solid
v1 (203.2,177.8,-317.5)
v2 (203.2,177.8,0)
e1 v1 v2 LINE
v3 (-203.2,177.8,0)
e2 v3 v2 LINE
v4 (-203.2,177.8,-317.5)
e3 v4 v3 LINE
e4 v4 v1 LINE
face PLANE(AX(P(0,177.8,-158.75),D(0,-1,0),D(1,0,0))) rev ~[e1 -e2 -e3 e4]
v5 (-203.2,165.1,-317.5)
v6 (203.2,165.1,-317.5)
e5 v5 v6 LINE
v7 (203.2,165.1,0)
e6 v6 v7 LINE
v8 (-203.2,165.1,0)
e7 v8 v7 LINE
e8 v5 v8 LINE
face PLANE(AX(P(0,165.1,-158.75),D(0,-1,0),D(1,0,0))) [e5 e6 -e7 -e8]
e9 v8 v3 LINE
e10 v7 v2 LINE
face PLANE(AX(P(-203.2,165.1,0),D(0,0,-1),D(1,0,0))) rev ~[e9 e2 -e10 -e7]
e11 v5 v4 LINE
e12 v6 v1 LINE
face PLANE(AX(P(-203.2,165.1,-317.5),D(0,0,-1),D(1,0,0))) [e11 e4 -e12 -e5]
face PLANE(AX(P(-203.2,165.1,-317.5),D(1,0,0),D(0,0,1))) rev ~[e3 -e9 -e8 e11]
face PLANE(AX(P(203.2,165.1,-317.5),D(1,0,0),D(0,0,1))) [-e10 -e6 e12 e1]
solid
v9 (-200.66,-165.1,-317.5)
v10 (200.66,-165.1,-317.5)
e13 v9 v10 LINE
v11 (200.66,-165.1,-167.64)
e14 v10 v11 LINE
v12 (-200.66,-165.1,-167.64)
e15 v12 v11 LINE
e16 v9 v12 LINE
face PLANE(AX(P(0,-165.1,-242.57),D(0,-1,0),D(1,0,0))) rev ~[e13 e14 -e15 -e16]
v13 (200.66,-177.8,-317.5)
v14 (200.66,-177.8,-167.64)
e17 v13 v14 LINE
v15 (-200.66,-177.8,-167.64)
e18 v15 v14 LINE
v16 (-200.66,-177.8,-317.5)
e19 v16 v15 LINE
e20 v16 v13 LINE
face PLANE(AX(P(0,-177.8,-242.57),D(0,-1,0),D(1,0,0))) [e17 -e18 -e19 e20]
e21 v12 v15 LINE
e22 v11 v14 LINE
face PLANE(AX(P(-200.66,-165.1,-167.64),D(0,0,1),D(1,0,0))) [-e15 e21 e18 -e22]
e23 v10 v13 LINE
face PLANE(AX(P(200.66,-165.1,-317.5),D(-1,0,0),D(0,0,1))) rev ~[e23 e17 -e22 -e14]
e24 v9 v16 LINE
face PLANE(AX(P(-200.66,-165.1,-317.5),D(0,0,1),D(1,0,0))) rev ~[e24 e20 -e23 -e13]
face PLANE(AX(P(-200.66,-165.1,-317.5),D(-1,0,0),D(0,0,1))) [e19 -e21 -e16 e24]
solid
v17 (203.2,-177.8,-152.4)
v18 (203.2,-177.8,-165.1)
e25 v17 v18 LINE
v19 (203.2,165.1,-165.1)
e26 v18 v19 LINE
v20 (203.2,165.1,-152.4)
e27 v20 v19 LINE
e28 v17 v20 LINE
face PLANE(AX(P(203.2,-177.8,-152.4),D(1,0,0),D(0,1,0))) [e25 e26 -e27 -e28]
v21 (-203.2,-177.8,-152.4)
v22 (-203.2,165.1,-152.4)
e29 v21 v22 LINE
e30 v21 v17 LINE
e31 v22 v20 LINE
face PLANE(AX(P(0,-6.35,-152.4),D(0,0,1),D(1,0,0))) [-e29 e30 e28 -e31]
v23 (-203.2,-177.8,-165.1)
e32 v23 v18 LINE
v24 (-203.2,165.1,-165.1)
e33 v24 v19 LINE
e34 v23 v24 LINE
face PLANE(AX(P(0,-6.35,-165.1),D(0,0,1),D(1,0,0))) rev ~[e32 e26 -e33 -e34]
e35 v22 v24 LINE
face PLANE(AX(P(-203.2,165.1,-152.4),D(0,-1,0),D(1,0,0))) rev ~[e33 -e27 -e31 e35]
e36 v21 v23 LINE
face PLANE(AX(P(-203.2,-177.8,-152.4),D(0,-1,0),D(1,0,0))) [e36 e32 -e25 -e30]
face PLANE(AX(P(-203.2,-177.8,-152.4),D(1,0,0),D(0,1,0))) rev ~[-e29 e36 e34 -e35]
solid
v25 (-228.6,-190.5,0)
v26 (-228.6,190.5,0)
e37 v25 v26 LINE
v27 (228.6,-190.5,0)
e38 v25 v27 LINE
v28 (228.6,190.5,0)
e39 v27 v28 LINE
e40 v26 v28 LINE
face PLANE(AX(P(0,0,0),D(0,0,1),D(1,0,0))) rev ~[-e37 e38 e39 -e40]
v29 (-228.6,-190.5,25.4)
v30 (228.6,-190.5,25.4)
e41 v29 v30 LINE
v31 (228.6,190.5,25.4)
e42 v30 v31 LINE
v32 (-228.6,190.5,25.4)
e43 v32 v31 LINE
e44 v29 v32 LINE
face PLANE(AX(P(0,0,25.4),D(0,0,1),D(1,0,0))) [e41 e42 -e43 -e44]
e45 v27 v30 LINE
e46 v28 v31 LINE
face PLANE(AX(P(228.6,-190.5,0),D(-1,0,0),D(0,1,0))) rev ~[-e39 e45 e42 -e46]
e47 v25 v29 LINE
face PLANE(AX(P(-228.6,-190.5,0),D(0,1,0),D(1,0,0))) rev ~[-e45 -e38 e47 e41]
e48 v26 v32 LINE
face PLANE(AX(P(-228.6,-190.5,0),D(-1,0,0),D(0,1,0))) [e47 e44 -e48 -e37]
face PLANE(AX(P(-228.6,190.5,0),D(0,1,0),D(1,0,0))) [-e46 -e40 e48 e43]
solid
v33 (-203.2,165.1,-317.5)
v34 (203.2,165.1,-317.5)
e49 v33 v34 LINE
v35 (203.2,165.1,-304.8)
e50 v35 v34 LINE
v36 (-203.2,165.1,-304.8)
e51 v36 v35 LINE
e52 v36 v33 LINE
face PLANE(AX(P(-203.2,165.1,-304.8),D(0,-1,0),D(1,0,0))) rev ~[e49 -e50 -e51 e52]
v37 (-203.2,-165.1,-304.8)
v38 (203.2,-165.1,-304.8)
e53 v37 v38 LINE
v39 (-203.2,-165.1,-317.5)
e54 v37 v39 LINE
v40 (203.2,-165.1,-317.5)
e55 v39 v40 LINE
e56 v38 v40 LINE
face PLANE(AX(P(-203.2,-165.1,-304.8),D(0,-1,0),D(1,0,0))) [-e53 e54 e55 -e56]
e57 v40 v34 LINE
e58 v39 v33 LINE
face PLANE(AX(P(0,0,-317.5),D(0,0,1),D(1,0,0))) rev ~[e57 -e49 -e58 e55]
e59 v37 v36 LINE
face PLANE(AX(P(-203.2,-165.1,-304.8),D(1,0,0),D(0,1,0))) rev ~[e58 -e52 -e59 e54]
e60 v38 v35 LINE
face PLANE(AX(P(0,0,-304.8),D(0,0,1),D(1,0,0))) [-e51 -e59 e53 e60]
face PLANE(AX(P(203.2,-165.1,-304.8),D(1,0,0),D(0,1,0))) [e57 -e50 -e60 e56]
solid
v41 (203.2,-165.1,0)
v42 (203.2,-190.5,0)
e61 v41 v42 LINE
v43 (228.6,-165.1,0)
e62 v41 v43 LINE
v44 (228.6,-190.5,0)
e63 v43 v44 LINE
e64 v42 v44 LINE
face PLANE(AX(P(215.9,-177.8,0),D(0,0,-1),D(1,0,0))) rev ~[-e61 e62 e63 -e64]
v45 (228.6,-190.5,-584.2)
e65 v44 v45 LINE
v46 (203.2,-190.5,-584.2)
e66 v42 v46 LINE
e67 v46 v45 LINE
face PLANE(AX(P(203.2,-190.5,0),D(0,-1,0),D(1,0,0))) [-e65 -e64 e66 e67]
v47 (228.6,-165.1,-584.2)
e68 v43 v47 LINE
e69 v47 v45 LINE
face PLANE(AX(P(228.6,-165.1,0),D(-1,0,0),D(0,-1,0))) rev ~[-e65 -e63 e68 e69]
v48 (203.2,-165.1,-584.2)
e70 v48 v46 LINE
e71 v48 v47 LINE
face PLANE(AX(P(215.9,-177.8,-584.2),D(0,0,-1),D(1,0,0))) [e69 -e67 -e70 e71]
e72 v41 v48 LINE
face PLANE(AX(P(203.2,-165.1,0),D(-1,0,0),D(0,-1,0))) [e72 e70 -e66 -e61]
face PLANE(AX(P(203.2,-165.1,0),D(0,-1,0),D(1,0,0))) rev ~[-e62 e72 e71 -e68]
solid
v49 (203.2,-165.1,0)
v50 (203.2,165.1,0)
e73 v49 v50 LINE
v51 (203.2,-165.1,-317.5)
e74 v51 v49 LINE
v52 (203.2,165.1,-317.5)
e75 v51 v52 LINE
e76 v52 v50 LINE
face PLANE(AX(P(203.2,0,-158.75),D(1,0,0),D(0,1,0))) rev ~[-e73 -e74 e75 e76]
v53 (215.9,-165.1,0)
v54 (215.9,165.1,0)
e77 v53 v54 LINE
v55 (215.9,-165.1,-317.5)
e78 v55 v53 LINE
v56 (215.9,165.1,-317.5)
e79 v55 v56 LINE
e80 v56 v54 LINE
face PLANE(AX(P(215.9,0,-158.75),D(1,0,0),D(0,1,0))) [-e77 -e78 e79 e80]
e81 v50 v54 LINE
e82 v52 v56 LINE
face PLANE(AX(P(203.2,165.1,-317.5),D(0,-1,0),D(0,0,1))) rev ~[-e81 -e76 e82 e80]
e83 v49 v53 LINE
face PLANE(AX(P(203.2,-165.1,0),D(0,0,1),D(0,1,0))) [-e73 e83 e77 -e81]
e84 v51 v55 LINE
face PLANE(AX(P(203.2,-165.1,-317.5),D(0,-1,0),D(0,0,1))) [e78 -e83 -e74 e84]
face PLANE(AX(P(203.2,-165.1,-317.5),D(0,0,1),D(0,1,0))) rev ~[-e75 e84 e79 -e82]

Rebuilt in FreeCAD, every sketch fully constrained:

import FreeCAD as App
import Part
import Sketcher
Q = App.Units.Quantity

doc = App.newDocument("Part")
body = doc.addObject("PartDesign::Body", "Body")

# Sketch on XY plane
sketch1 = doc.addObject("Sketcher::SketchObject", "Sketch")
body.addObject(sketch1)
sketch1.AttachmentSupport = (doc.XY_Plane, [""])
sketch1.MapMode = "FlatFace"
sketch1.addGeometry(Part.LineSegment(App.Vector(-229, 190, 0), App.Vector(-229, -190, 0)), False)
sketch1.addGeometry(Part.LineSegment(App.Vector(-229, -190, 0), App.Vector(229, -190, 0)), False)
sketch1.addGeometry(Part.LineSegment(App.Vector(229, -190, 0), App.Vector(229, 190, 0)), False)
sketch1.addGeometry(Part.LineSegment(App.Vector(229, 190, 0), App.Vector(-229, 190, 0)), False)
sketch1.addConstraint(Sketcher.Constraint("Coincident", 0, 2, 1, 1))
sketch1.addConstraint(Sketcher.Constraint("Coincident", 1, 2, 2, 1))
sketch1.addConstraint(Sketcher.Constraint("Coincident", 2, 2, 3, 1))
sketch1.addConstraint(Sketcher.Constraint("Coincident", 3, 2, 0, 1))
sketch1.addConstraint(Sketcher.Constraint("Vertical", 0))
sketch1.addConstraint(Sketcher.Constraint("Horizontal", 1))
sketch1.addConstraint(Sketcher.Constraint("Vertical", 2))
sketch1.addConstraint(Sketcher.Constraint("Horizontal", 3))
sketch1.addConstraint(Sketcher.Constraint("Symmetric", 0, 2, 2, 2, -1, 1))
sketch1.addConstraint(Sketcher.Constraint("DistanceX", 1, 1, 1, 2, Q("18 in")))
sketch1.addConstraint(Sketcher.Constraint("DistanceY", 0, 2, 0, 1, Q("15 in")))
pad1 = doc.addObject("PartDesign::Pad", "Pad")
body.addObject(pad1)
pad1.Profile = sketch1
pad1.Length = Q("1 in")
body2 = doc.addObject("PartDesign::Body", "Body001")

# Sketch on XY plane
sketch2 = doc.addObject("Sketcher::SketchObject", "Sketch001")
body2.addObject(sketch2)
sketch2.AttachmentSupport = (doc.getObject("XY_Plane001"), [""])
sketch2.MapMode = "FlatFace"
sketch2.addGeometry(Part.LineSegment(App.Vector(203, -190, 0), App.Vector(203, -165, 0)), False)
sketch2.addGeometry(Part.LineSegment(App.Vector(203, -165, 0), App.Vector(229, -165, 0)), False)
sketch2.addGeometry(Part.LineSegment(App.Vector(229, -165, 0), App.Vector(229, -190, 0)), False)
sketch2.addGeometry(Part.LineSegment(App.Vector(229, -190, 0), App.Vector(203, -190, 0)), False)
sketch2.addConstraint(Sketcher.Constraint("Coincident", 0, 2, 1, 1))
sketch2.addConstraint(Sketcher.Constraint("Coincident", 1, 2, 2, 1))
sketch2.addConstraint(Sketcher.Constraint("Coincident", 2, 2, 3, 1))
sketch2.addConstraint(Sketcher.Constraint("Coincident", 3, 2, 0, 1))
sketch2.addConstraint(Sketcher.Constraint("Vertical", 0))
sketch2.addConstraint(Sketcher.Constraint("Horizontal", 1))
sketch2.addConstraint(Sketcher.Constraint("Vertical", 2))
sketch2.addConstraint(Sketcher.Constraint("Horizontal", 3))
sketch2.addConstraint(Sketcher.Constraint("Equal", 3, 0))
sketch2.addConstraint(Sketcher.Constraint("DistanceX", 1, 1, 1, 2, Q("1 in")))
sketch2.addConstraint(Sketcher.Constraint("DistanceX", -1, 1, 0, 2, Q("8 in")))
sketch2.addConstraint(Sketcher.Constraint("DistanceY", 0, 2, -1, 1, Q("6.5 in")))
pad2 = doc.addObject("PartDesign::Pad", "Pad001")
body2.addObject(pad2)
pad2.Profile = sketch2
pad2.Length = Q("23 in")
pad2.Reversed = True
body3 = doc.addObject("PartDesign::Body", "Body002")

# Sketch on XY plane
sketch3 = doc.addObject("Sketcher::SketchObject", "Sketch002")
body3.addObject(sketch3)
sketch3.AttachmentSupport = (doc.getObject("XY_Plane002"), [""])
sketch3.MapMode = "FlatFace"
sketch3.AttachmentOffset = App.Placement(App.Vector(0, 0, -12 * 25.4), App.Rotation())
sketch3.addGeometry(Part.LineSegment(App.Vector(-203, 165, 0), App.Vector(-203, -165, 0)), False)
sketch3.addGeometry(Part.LineSegment(App.Vector(-203, -165, 0), App.Vector(203, -165, 0)), False)
sketch3.addGeometry(Part.LineSegment(App.Vector(203, -165, 0), App.Vector(203, 165, 0)), False)
sketch3.addGeometry(Part.LineSegment(App.Vector(203, 165, 0), App.Vector(-203, 165, 0)), False)
sketch3.addConstraint(Sketcher.Constraint("Coincident", 0, 2, 1, 1))
sketch3.addConstraint(Sketcher.Constraint("Coincident", 1, 2, 2, 1))
sketch3.addConstraint(Sketcher.Constraint("Coincident", 2, 2, 3, 1))
sketch3.addConstraint(Sketcher.Constraint("Coincident", 3, 2, 0, 1))
sketch3.addConstraint(Sketcher.Constraint("Vertical", 0))
sketch3.addConstraint(Sketcher.Constraint("Horizontal", 1))
sketch3.addConstraint(Sketcher.Constraint("Vertical", 2))
sketch3.addConstraint(Sketcher.Constraint("Horizontal", 3))
sketch3.addConstraint(Sketcher.Constraint("Symmetric", 0, 2, 2, 2, -1, 1))
sketch3.addConstraint(Sketcher.Constraint("DistanceX", 1, 1, 1, 2, Q("16 in")))
sketch3.addConstraint(Sketcher.Constraint("DistanceY", 0, 2, 0, 1, Q("13 in")))
pad3 = doc.addObject("PartDesign::Pad", "Pad002")
body3.addObject(pad3)
pad3.Profile = sketch3
pad3.Length = Q("0.5 in")
pad3.Reversed = True
body4 = doc.addObject("PartDesign::Body", "Body003")

# Sketch on YZ plane
sketch4 = doc.addObject("Sketcher::SketchObject", "Sketch003")
body4.addObject(sketch4)
sketch4.AttachmentSupport = (doc.getObject("YZ_Plane003"), [""])
sketch4.MapMode = "FlatFace"
sketch4.AttachmentOffset = App.Placement(App.Vector(0, 0, 8 * 25.4), App.Rotation())
sketch4.addGeometry(Part.LineSegment(App.Vector(-165, 0, 0), App.Vector(-165, -318, 0)), False)
sketch4.addGeometry(Part.LineSegment(App.Vector(-165, -318, 0), App.Vector(165, -318, 0)), False)
sketch4.addGeometry(Part.LineSegment(App.Vector(165, -318, 0), App.Vector(165, 0, 0)), False)
sketch4.addGeometry(Part.LineSegment(App.Vector(165, 0, 0), App.Vector(-165, 0, 0)), False)
sketch4.addConstraint(Sketcher.Constraint("Coincident", 0, 2, 1, 1))
sketch4.addConstraint(Sketcher.Constraint("Coincident", 1, 2, 2, 1))
sketch4.addConstraint(Sketcher.Constraint("Coincident", 2, 2, 3, 1))
sketch4.addConstraint(Sketcher.Constraint("Coincident", 3, 2, 0, 1))
sketch4.addConstraint(Sketcher.Constraint("Vertical", 0))
sketch4.addConstraint(Sketcher.Constraint("Horizontal", 1))
sketch4.addConstraint(Sketcher.Constraint("Vertical", 2))
sketch4.addConstraint(Sketcher.Constraint("Horizontal", 3))
sketch4.addConstraint(Sketcher.Constraint("Symmetric", 2, 2, 3, 2, -1, 1))
sketch4.addConstraint(Sketcher.Constraint("DistanceX", 1, 1, 1, 2, Q("13 in")))
sketch4.addConstraint(Sketcher.Constraint("DistanceY", 0, 2, 0, 1, Q("12.5 in")))
pad4 = doc.addObject("PartDesign::Pad", "Pad003")
body4.addObject(pad4)
pad4.Profile = sketch4
pad4.Length = Q("0.5 in")
body5 = doc.addObject("PartDesign::Body", "Body004")

# Sketch on XZ plane
sketch5 = doc.addObject("Sketcher::SketchObject", "Sketch004")
body5.addObject(sketch5)
sketch5.AttachmentSupport = (doc.getObject("XZ_Plane004"), [""])
sketch5.MapMode = "FlatFace"
sketch5.AttachmentOffset = App.Placement(App.Vector(0, 0, -6.5 * 25.4), App.Rotation())
sketch5.addGeometry(Part.LineSegment(App.Vector(-203, 0, 0), App.Vector(-203, -318, 0)), False)
sketch5.addGeometry(Part.LineSegment(App.Vector(-203, -318, 0), App.Vector(203, -318, 0)), False)
sketch5.addGeometry(Part.LineSegment(App.Vector(203, -318, 0), App.Vector(203, 0, 0)), False)
sketch5.addGeometry(Part.LineSegment(App.Vector(203, 0, 0), App.Vector(-203, 0, 0)), False)
sketch5.addConstraint(Sketcher.Constraint("Coincident", 0, 2, 1, 1))
sketch5.addConstraint(Sketcher.Constraint("Coincident", 1, 2, 2, 1))
sketch5.addConstraint(Sketcher.Constraint("Coincident", 2, 2, 3, 1))
sketch5.addConstraint(Sketcher.Constraint("Coincident", 3, 2, 0, 1))
sketch5.addConstraint(Sketcher.Constraint("Vertical", 0))
sketch5.addConstraint(Sketcher.Constraint("Horizontal", 1))
sketch5.addConstraint(Sketcher.Constraint("Vertical", 2))
sketch5.addConstraint(Sketcher.Constraint("Horizontal", 3))
sketch5.addConstraint(Sketcher.Constraint("Symmetric", 2, 2, 3, 2, -1, 1))
sketch5.addConstraint(Sketcher.Constraint("DistanceX", 1, 1, 1, 2, Q("16 in")))
sketch5.addConstraint(Sketcher.Constraint("DistanceY", 0, 2, 0, 1, Q("12.5 in")))
pad5 = doc.addObject("PartDesign::Pad", "Pad004")
body5.addObject(pad5)
pad5.Profile = sketch5
pad5.Length = Q("0.5 in")
pad5.Reversed = True
body6 = doc.addObject("PartDesign::Body", "Body005")

# Sketch on XZ plane
sketch6 = doc.addObject("Sketcher::SketchObject", "Sketch005")
body6.addObject(sketch6)
sketch6.AttachmentSupport = (doc.getObject("XZ_Plane005"), [""])
sketch6.MapMode = "FlatFace"
sketch6.AttachmentOffset = App.Placement(App.Vector(0, 0, 6.5 * 25.4), App.Rotation())
sketch6.addGeometry(Part.LineSegment(App.Vector(-201, -168, 0), App.Vector(-201, -318, 0)), False)
sketch6.addGeometry(Part.LineSegment(App.Vector(-201, -318, 0), App.Vector(201, -318, 0)), False)
sketch6.addGeometry(Part.LineSegment(App.Vector(201, -318, 0), App.Vector(201, -168, 0)), False)
sketch6.addGeometry(Part.LineSegment(App.Vector(201, -168, 0), App.Vector(-201, -168, 0)), False)
sketch6.addConstraint(Sketcher.Constraint("Coincident", 0, 2, 1, 1))
sketch6.addConstraint(Sketcher.Constraint("Coincident", 1, 2, 2, 1))
sketch6.addConstraint(Sketcher.Constraint("Coincident", 2, 2, 3, 1))
sketch6.addConstraint(Sketcher.Constraint("Coincident", 3, 2, 0, 1))
sketch6.addConstraint(Sketcher.Constraint("Vertical", 0))
sketch6.addConstraint(Sketcher.Constraint("Horizontal", 1))
sketch6.addConstraint(Sketcher.Constraint("Vertical", 2))
sketch6.addConstraint(Sketcher.Constraint("Horizontal", 3))
sketch6.addConstraint(Sketcher.Constraint("DistanceX", 1, 1, 1, 2, Q("15.8 in")))
sketch6.addConstraint(Sketcher.Constraint("DistanceY", 0, 2, 0, 1, Q("5.9 in")))
sketch6.addConstraint(Sketcher.Constraint("DistanceX", 0, 2, -1, 1, Q("7.9 in")))
sketch6.addConstraint(Sketcher.Constraint("DistanceY", 0, 2, -1, 1, Q("12.5 in")))
pad6 = doc.addObject("PartDesign::Pad", "Pad005")
body6.addObject(pad6)
pad6.Profile = sketch6
pad6.Length = Q("0.5 in")
body7 = doc.addObject("PartDesign::Body", "Body006")

# Sketch on XY plane
sketch7 = doc.addObject("Sketcher::SketchObject", "Sketch006")
body7.addObject(sketch7)
sketch7.AttachmentSupport = (doc.getObject("XY_Plane006"), [""])
sketch7.MapMode = "FlatFace"
sketch7.AttachmentOffset = App.Placement(App.Vector(0, 0, -6 * 25.4), App.Rotation())
sketch7.addGeometry(Part.LineSegment(App.Vector(-203, 165, 0), App.Vector(-203, -178, 0)), False)
sketch7.addGeometry(Part.LineSegment(App.Vector(-203, -178, 0), App.Vector(203, -178, 0)), False)
sketch7.addGeometry(Part.LineSegment(App.Vector(203, -178, 0), App.Vector(203, 165, 0)), False)
sketch7.addGeometry(Part.LineSegment(App.Vector(203, 165, 0), App.Vector(-203, 165, 0)), False)
sketch7.addConstraint(Sketcher.Constraint("Coincident", 0, 2, 1, 1))
sketch7.addConstraint(Sketcher.Constraint("Coincident", 1, 2, 2, 1))
sketch7.addConstraint(Sketcher.Constraint("Coincident", 2, 2, 3, 1))
sketch7.addConstraint(Sketcher.Constraint("Coincident", 3, 2, 0, 1))
sketch7.addConstraint(Sketcher.Constraint("Vertical", 0))
sketch7.addConstraint(Sketcher.Constraint("Horizontal", 1))
sketch7.addConstraint(Sketcher.Constraint("Vertical", 2))
sketch7.addConstraint(Sketcher.Constraint("Horizontal", 3))
sketch7.addConstraint(Sketcher.Constraint("DistanceX", 1, 1, 1, 2, Q("16 in")))
sketch7.addConstraint(Sketcher.Constraint("DistanceY", 0, 2, 0, 1, Q("13.5 in")))
sketch7.addConstraint(Sketcher.Constraint("DistanceX", 0, 2, -1, 1, Q("8 in")))
sketch7.addConstraint(Sketcher.Constraint("DistanceY", 0, 2, -1, 1, Q("7 in")))
pad7 = doc.addObject("PartDesign::Pad", "Pad006")
body7.addObject(pad7)
pad7.Profile = sketch7
pad7.Length = Q("0.5 in")
pad7.Reversed = True

doc.recompute()
